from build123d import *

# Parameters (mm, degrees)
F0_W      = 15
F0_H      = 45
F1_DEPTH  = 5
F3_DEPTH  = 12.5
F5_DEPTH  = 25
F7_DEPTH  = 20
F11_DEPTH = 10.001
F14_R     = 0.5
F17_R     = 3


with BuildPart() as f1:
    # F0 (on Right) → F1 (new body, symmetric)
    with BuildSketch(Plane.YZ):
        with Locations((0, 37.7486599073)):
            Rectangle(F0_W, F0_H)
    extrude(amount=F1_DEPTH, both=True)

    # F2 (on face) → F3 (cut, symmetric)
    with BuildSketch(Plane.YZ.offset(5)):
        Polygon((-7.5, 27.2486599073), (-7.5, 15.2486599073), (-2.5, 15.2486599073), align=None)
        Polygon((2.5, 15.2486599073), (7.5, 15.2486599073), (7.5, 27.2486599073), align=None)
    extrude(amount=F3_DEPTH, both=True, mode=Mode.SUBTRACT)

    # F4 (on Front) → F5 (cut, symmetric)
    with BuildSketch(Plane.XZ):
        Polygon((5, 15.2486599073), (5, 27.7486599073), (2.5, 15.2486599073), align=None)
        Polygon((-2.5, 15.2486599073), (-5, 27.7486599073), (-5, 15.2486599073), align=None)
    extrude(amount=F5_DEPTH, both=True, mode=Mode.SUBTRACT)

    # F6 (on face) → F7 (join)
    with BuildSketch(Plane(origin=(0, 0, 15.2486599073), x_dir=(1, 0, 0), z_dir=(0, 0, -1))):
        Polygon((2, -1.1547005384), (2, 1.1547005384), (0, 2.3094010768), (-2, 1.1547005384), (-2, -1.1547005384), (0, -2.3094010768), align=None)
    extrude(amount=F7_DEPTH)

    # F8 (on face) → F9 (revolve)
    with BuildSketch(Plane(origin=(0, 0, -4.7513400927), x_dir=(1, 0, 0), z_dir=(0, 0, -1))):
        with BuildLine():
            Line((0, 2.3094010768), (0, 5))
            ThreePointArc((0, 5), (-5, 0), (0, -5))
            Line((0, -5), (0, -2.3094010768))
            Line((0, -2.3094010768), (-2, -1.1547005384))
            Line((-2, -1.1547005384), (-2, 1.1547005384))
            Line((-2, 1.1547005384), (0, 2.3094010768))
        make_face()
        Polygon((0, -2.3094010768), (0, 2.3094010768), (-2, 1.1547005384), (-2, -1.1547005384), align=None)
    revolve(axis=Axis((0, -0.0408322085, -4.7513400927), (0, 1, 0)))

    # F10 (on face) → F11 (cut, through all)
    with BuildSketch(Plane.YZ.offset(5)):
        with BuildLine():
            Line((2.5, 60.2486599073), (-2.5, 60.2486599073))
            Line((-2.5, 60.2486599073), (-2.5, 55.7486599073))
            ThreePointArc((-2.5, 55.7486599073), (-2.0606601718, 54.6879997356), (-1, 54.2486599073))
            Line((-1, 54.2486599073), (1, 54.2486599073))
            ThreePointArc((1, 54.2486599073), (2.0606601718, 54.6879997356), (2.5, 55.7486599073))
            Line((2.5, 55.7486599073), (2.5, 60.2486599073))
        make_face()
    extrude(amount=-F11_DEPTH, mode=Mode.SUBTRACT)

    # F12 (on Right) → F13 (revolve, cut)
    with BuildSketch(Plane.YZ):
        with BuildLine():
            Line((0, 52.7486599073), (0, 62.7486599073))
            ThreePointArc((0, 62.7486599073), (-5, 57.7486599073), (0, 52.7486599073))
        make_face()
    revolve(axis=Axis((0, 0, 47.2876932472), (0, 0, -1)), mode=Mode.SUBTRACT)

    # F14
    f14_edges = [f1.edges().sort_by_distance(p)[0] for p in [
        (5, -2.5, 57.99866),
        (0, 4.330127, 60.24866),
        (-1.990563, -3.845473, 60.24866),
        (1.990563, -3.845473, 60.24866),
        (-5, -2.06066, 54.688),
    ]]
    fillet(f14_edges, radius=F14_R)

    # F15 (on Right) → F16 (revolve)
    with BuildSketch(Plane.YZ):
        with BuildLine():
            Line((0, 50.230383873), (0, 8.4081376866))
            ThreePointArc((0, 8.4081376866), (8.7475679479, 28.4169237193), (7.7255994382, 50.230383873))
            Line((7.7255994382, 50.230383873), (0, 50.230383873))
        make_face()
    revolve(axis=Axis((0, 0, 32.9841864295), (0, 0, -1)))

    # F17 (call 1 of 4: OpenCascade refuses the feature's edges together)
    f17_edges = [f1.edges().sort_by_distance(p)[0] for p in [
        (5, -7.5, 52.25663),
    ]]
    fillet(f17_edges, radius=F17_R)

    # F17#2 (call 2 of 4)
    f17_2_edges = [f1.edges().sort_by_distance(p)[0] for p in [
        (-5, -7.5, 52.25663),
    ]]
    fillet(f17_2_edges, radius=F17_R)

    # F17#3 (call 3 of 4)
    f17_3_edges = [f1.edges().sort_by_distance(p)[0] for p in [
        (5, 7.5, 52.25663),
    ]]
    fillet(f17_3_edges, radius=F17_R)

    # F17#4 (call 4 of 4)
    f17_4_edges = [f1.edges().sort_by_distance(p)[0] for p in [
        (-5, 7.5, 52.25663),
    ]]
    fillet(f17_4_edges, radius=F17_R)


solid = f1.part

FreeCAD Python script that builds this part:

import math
import FreeCAD as App
import Part
import Sketcher
from FreeCAD import Vector
Q = App.Units.Quantity


def edges_at(feature, points):
    """Names of the edges that pass closest to the given points."""
    edges = feature.Shape.Edges
    near = lambda p: min(range(len(edges)), key=lambda i: edges[i].distToShape(Part.Vertex(*p))[0])
    return sorted({f"Edge{near(p) + 1}" for p in points})


def add_polygon(sketch, points):
    """Adds a closed chain of lines whose ends are joined by coincident constraints."""
    first, n = sketch.GeometryCount, len(points)
    for a, b in zip(points, points[1:] + points[:1]):
        sketch.addGeometry(Part.LineSegment(App.Vector(*a, 0), App.Vector(*b, 0)), False)
    for i in range(n):
        sketch.addConstraint(Sketcher.Constraint("Coincident", first + i, 2, first + (i + 1) % n, 1))

doc = App.newDocument("Part")
params = doc.addObject("Spreadsheet::Sheet", "Params")
for row, (alias, value) in enumerate([
    ("sketch1_width", "15 mm"),
    ("sketch1_height", "45 mm"),
    ("pad1_length", "10 mm"),
    ("sketch2_width", "5 mm"),
    ("sketch2_height", "12 mm"),
    ("pocket1_length", "25 mm"),
    ("sketch3_width", "2.5 mm"),
    ("sketch3_height", "12.5 mm"),
    ("pocket2_length", "50 mm"),
    ("pad2_length", "20 mm"),
    ("sketch5_radius", "5 mm"),
    ("revolution_angle", "360 deg"),
    ("sketch6_radius", "1.5 mm"),
    ("sketch6_width", "5 mm"),
    ("sketch6_height", "4.5 mm"),
    ("sketch7_radius", "5 mm"),
    ("groove_angle", "360 deg"),
    ("fillet_radius", "0.5 mm"),
    ("sketch8_radius", "48 mm"),
    ("revolution2_angle", "360 deg"),
    ("fillet2_radius", "3 mm"),
    ("fillet3_radius", "3 mm"),
    ("fillet4_radius", "3 mm"),
    ("fillet5_radius", "3 mm"),
], start=1):
    params.set(f"A{row}", alias)
    params.set(f"B{row}", "=" + value)
    params.setAlias(f"B{row}", alias)

body = doc.addObject("PartDesign::Body", "Body")

# Sketch on YZ plane
sketch1 = body.newObject("Sketcher::SketchObject", "Sketch")
sketch1.AttachmentSupport = (doc.getObject("YZ_Plane"), [""])
sketch1.MapMode = "FlatFace"
add_polygon(sketch1, [(-7.5, 60.24866), (-7.5, 15.24866), (7.5, 15.24866), (7.5, 60.24866)])  # lines 0-3
sketch1.addConstraint([
    Sketcher.Constraint("Vertical", 0),
    Sketcher.Constraint("Horizontal", 1),
    Sketcher.Constraint("Vertical", 2),
    Sketcher.Constraint("Horizontal", 3),
    Sketcher.Constraint("DistanceX", 1, 1, 1, 2, Q("15 mm")),
    Sketcher.Constraint("DistanceY", 0, 2, 0, 1, Q("45 mm")),
    Sketcher.Constraint("DistanceX", 0, 2, -1, 1, Q("7.5 mm")),
    Sketcher.Constraint("DistanceY", -1, 1, 0, 2, Q("15.24866 mm")),
])
sketch1.setExpression("Constraints[8]", "Params.sketch1_width")
sketch1.setExpression("Constraints[9]", "Params.sketch1_height")
pad1 = body.newObject("PartDesign::Pad", "Pad")
pad1.Profile = sketch1
pad1.setExpression("Length", "Params.pad1_length")
pad1.Midplane = True

# Sketch on YZ plane
sketch2 = body.newObject("Sketcher::SketchObject", "Sketch001")
sketch2.AttachmentSupport = (doc.getObject("YZ_Plane"), [""])
sketch2.MapMode = "FlatFace"
sketch2.AttachmentOffset = App.Placement(Vector(0, 0, 5), App.Rotation())
add_polygon(sketch2, [(-7.5, 27.24866), (-7.5, 15.24866), (-2.5, 15.24866)])  # lines 0-2
add_polygon(sketch2, [(2.5, 15.24866), (7.5, 15.24866), (7.5, 27.24866)])  # lines 3-5
sketch2.addConstraint([
    Sketcher.Constraint("Vertical", 0),
    Sketcher.Constraint("Horizontal", 1),
    Sketcher.Constraint("Horizontal", 3),
    Sketcher.Constraint("Vertical", 4),
    Sketcher.Constraint("Symmetric", 0, 2, 3, 2, -2),
    Sketcher.Constraint("Horizontal", 2, 2, 4, 2),
    Sketcher.Constraint("Equal", 1, 3),
    Sketcher.Constraint("DistanceX", 1, 1, 1, 2, Q("5 mm")),
    Sketcher.Constraint("DistanceY", 0, 2, 0, 1, Q("12 mm")),
    Sketcher.Constraint("DistanceX", 1, 2, 3, 2, Q("10 mm")),
    Sketcher.Constraint("DistanceY", -1, 1, 0, 2, Q("15.24866 mm")),
])
sketch2.setExpression("Constraints[13]", "Params.sketch2_width")
sketch2.setExpression("Constraints[14]", "Params.sketch2_height")
pocket1 = body.newObject("PartDesign::Pocket", "Pocket")
pocket1.Profile = sketch2
pocket1.setExpression("Length", "Params.pocket1_length")
pocket1.Midplane = True

# Sketch on XZ plane
sketch3 = body.newObject("Sketcher::SketchObject", "Sketch002")
sketch3.AttachmentSupport = (doc.getObject("XZ_Plane"), [""])
sketch3.MapMode = "FlatFace"
add_polygon(sketch3, [(5, 15.24866), (5, 27.74866), (2.5, 15.24866)])  # lines 0-2
add_polygon(sketch3, [(-2.5, 15.24866), (-5, 27.74866), (-5, 15.24866)])  # lines 3-5
sketch3.addConstraint([
    Sketcher.Constraint("Vertical", 0),
    Sketcher.Constraint("Horizontal", 2),
    Sketcher.Constraint("Vertical", 4),
    Sketcher.Constraint("Horizontal", 5),
    Sketcher.Constraint("Symmetric", 0, 2, 3, 2, -2),
    Sketcher.Constraint("Symmetric", 1, 2, 5, 2, -2),
    Sketcher.Constraint("DistanceX", 2, 1, 2, 2, Q("2.5 mm")),
    Sketcher.Constraint("DistanceY", 0, 1, 0, 2, Q("12.5 mm")),
    Sketcher.Constraint("DistanceX", -1, 1, 0, 2, Q("5 mm")),
    Sketcher.Constraint("DistanceY", -1, 1, 0, 2, Q("27.74866 mm")),
])
sketch3.setExpression("Constraints[12]", "Params.sketch3_width")
sketch3.setExpression("Constraints[13]", "Params.sketch3_height")
pocket2 = body.newObject("PartDesign::Pocket", "Pocket001")
pocket2.Profile = sketch3
pocket2.setExpression("Length", "Params.pocket2_length")
pocket2.Midplane = True

# Sketch on XY plane
sketch4 = body.newObject("Sketcher::SketchObject", "Sketch003")
sketch4.AttachmentSupport = (doc.getObject("XY_Plane"), [""])
sketch4.MapMode = "FlatFace"
sketch4.AttachmentOffset = App.Placement(Vector(0, 0, 15.24866), App.Rotation())
add_polygon(sketch4, [(2, 1.154701), (2, -1.154701), (0, -2.309401), (-2, -1.154701), (-2, 1.154701), (0, 2.309401)])  # lines 0-5
sketch4.addConstraint([
    Sketcher.Constraint("Vertical", 0),
    Sketcher.Constraint("Vertical", 3),
    Sketcher.Constraint("Symmetric", 0, 2, 3, 2, -1, 1),
    Sketcher.Constraint("Symmetric", 1, 2, 4, 2, -1, 1),
    Sketcher.Constraint("PointOnObject", 1, 2, -2),
    Sketcher.Constraint("Parallel", 2, 5),
    Sketcher.Constraint("Horizontal", 0, 2, 2, 2),
    Sketcher.Constraint("Angle", 1, Q("-150 deg")),
    Sketcher.Constraint("DistanceX", -1, 1, 0, 2, Q("2 mm")),
    Sketcher.Constraint("DistanceY", 0, 2, 0, 1, Q("2.309401 mm")),
])
pad2 = body.newObject("PartDesign::Pad", "Pad001")
pad2.Profile = sketch4
pad2.setExpression("Length", "Params.pad2_length")
pad2.Reversed = True

# Sketch on XY plane
sketch5 = body.newObject("Sketcher::SketchObject", "Sketch004")
sketch5.AttachmentSupport = (doc.getObject("XY_Plane"), [""])
sketch5.MapMode = "FlatFace"
sketch5.AttachmentOffset = App.Placement(Vector(0, 0, -4.75134), App.Rotation())
sketch5.addGeometry([
    Part.ArcOfCircle(Part.Circle(Vector(0, 0, 0), Vector(0, 0, 1), 5), math.radians(90), math.radians(270)),
    Part.LineSegment(Vector(0, 5, 0), Vector(0, -5, 0)),
], False)
sketch5.addConstraint([
    Sketcher.Constraint("Coincident", 0, 1, 1, 1),
    Sketcher.Constraint("Coincident", 1, 2, 0, 2),
    Sketcher.Constraint("Vertical", 1),
    Sketcher.Constraint("Coincident", 0, 3, -1, 1),
    Sketcher.Constraint("PointOnObject", 0, 1, -2),
    Sketcher.Constraint("Radius", 0, Q("5 mm")),
])
sketch5.setExpression("Constraints[5]", "Params.sketch5_radius")
revolution = body.newObject("PartDesign::Revolution", "Revolution")
revolution.Profile = sketch5
revolution.ReferenceAxis = (sketch5, ["V_Axis"])
revolution.setExpression("Angle", "Params.revolution_angle")

# Sketch on YZ plane
sketch6 = body.newObject("Sketcher::SketchObject", "Sketch005")
sketch6.AttachmentSupport = (doc.getObject("YZ_Plane"), [""])
sketch6.MapMode = "FlatFace"
sketch6.AttachmentOffset = App.Placement(Vector(0, 0, 5), App.Rotation())
sketch6.addGeometry([
    Part.LineSegment(Vector(2.5, 60.24866, 0), Vector(-2.5, 60.24866, 0)),  # 0
    Part.LineSegment(Vector(-2.5, 60.24866, 0), Vector(-2.5, 55.74866, 0)),  # 1
    Part.ArcOfCircle(Part.Circle(Vector(-1, 55.74866, 0), Vector(0, 0, 1), 1.5), math.radians(180), math.radians(270)),  # 2
    Part.LineSegment(Vector(-1, 54.24866, 0), Vector(1, 54.24866, 0)),  # 3
    Part.ArcOfCircle(Part.Circle(Vector(1, 55.74866, 0), Vector(0, 0, 1), 1.5), math.radians(-90), math.radians(0)),  # 4
    Part.LineSegment(Vector(2.5, 55.74866, 0), Vector(2.5, 60.24866, 0)),  # 5
], False)
sketch6.addConstraint([
    Sketcher.Constraint("Coincident", 0, 2, 1, 1),
    Sketcher.Constraint("Tangent", 1, 2, 2, 1),
    Sketcher.Constraint("Tangent", 2, 2, 3, 1),
    Sketcher.Constraint("Tangent", 3, 2, 4, 1),
    Sketcher.Constraint("Tangent", 4, 2, 5, 1),
    Sketcher.Constraint("Coincident", 5, 2, 0, 1),
    Sketcher.Constraint("Horizontal", 0),
    Sketcher.Constraint("Vertical", 1),
    Sketcher.Constraint("Horizontal", 3),
    Sketcher.Constraint("Vertical", 5),
    Sketcher.Constraint("Equal", 2, 4),
    Sketcher.Constraint("Radius", 2, Q("1.5 mm")),
    Sketcher.Constraint("DistanceX", 0, 2, 0, 1, Q("5 mm")),
    Sketcher.Constraint("DistanceY", 1, 2, 1, 1, Q("4.5 mm")),
    Sketcher.Constraint("DistanceX", 2, 3, -1, 1, Q("1 mm")),
    Sketcher.Constraint("DistanceY", -1, 1, 2, 3, Q("55.74866 mm")),
])
sketch6.setExpression("Constraints[11]", "Params.sketch6_radius")
sketch6.setExpression("Constraints[12]", "Params.sketch6_width")
sketch6.setExpression("Constraints[13]", "Params.sketch6_height")
pocket3 = body.newObject("PartDesign::Pocket", "Pocket002")
pocket3.Profile = sketch6
pocket3.Type = "ThroughAll"

# Sketch on YZ plane
sketch7 = body.newObject("Sketcher::SketchObject", "Sketch006")
sketch7.AttachmentSupport = (doc.getObject("YZ_Plane"), [""])
sketch7.MapMode = "FlatFace"
sketch7.addGeometry([
    Part.LineSegment(Vector(0, 52.74866, 0), Vector(0, 62.74866, 0)),
    Part.ArcOfCircle(Part.Circle(Vector(0, 57.74866, 0), Vector(0, 0, 1), 5), math.radians(90), math.radians(270)),
], False)
sketch7.addConstraint([
    Sketcher.Constraint("Coincident", 0, 1, 1, 2),
    Sketcher.Constraint("Coincident", 1, 1, 0, 2),
    Sketcher.Constraint("Vertical", 0),
    Sketcher.Constraint("PointOnObject", 1, 3, -2),
    Sketcher.Constraint("PointOnObject", 0, 1, -2),
    Sketcher.Constraint("Radius", 1, Q("5 mm")),
    Sketcher.Constraint("DistanceY", -1, 1, 1, 3, Q("57.74866 mm")),
])
sketch7.setExpression("Constraints[5]", "Params.sketch7_radius")
groove = body.newObject("PartDesign::Groove", "Groove")
groove.Profile = sketch7
groove.ReferenceAxis = (sketch7, ["V_Axis"])
groove.setExpression("Angle", "Params.groove_angle")
doc.recompute()

fillet = body.newObject("PartDesign::Fillet", "Fillet")
fillet.Base = (groove, edges_at(groove, [
    (5, -2.5, 57.999),
    (0, 4.33, 60.249),
    (-1.991, -3.845, 60.249),
    (1.991, -3.845, 60.249),
    (-5, -2.061, 54.688),
]))
fillet.setExpression("Radius", "Params.fillet_radius")

# Sketch on YZ plane
sketch8 = body.newObject("Sketcher::SketchObject", "Sketch007")
sketch8.AttachmentSupport = (doc.getObject("YZ_Plane"), [""])
sketch8.MapMode = "FlatFace"
sketch8.addGeometry([
    Part.LineSegment(Vector(0, 50.230384, 0), Vector(0, 8.408138, 0)),
    Part.ArcOfCircle(Part.Circle(Vector(-38.453856, 37.13619, 0), Vector(0, 0, 1), 48), math.radians(-36.762621), math.radians(15.830696)),
    Part.LineSegment(Vector(7.725599, 50.230384, 0), Vector(0, 50.230384, 0)),
], False)
sketch8.addConstraint([
    Sketcher.Constraint("Coincident", 0, 2, 1, 1),
    Sketcher.Constraint("Coincident", 1, 2, 2, 1),
    Sketcher.Constraint("Coincident", 2, 2, 0, 1),
    Sketcher.Constraint("Vertical", 0),
    Sketcher.Constraint("Horizontal", 2),
    Sketcher.Constraint("PointOnObject", 0, 2, -2),
    Sketcher.Constraint("Radius", 1, Q("48 mm")),
    Sketcher.Constraint("DistanceX", 2, 2, 2, 1, Q("7.725599 mm")),
    Sketcher.Constraint("DistanceY", 0, 2, 0, 1, Q("41.822246 mm")),
    Sketcher.Constraint("DistanceY", -1, 1, 1, 3, Q("37.13619 mm")),
])
sketch8.setExpression("Constraints[6]", "Params.sketch8_radius")
revolution2 = body.newObject("PartDesign::Revolution", "Revolution001")
revolution2.Profile = sketch8
revolution2.ReferenceAxis = (sketch8, ["V_Axis"])
revolution2.setExpression("Angle", "Params.revolution2_angle")
doc.recompute()

fillet2 = body.newObject("PartDesign::Fillet", "Fillet001")
fillet2.Base = (revolution2, edges_at(revolution2, [(5, -7.5, 52.257)]))
fillet2.setExpression("Radius", "Params.fillet2_radius")
doc.recompute()

fillet3 = body.newObject("PartDesign::Fillet", "Fillet002")
fillet3.Base = (fillet2, edges_at(fillet2, [(-5, -7.5, 52.257)]))
fillet3.setExpression("Radius", "Params.fillet3_radius")
doc.recompute()

fillet4 = body.newObject("PartDesign::Fillet", "Fillet003")
fillet4.Base = (fillet3, edges_at(fillet3, [(5, 7.5, 52.257)]))
fillet4.setExpression("Radius", "Params.fillet4_radius")
doc.recompute()

fillet5 = body.newObject("PartDesign::Fillet", "Fillet004")
fillet5.Base = (fillet4, edges_at(fillet4, [(-5, 7.5, 52.257)]))
fillet5.setExpression("Radius", "Params.fillet5_radius")

doc.recompute()
